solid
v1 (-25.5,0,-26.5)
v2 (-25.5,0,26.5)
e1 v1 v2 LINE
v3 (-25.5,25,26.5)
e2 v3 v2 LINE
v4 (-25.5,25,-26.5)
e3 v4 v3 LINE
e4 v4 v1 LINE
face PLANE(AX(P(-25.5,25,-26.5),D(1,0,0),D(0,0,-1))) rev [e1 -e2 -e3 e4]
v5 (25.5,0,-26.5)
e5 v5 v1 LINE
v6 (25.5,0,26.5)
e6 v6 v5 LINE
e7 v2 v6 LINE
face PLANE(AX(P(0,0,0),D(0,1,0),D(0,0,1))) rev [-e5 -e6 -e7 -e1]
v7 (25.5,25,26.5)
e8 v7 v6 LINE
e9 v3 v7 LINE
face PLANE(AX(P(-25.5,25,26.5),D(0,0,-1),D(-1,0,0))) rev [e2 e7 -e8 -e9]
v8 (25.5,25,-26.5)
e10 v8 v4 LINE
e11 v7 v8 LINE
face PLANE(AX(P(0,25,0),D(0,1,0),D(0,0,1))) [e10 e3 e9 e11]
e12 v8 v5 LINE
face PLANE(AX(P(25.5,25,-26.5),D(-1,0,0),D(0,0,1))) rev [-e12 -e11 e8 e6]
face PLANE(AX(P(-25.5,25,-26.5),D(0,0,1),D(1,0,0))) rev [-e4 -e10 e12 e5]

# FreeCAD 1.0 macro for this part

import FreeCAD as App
import Part
import Sketcher

V = App.Vector


def add_polygon(sketch, points):
    """Adds a closed chain of lines whose ends are joined by coincident constraints."""
    first, n = sketch.GeometryCount, len(points)
    for a, b in zip(points, points[1:] + points[:1]):
        sketch.addGeometry(Part.LineSegment(App.Vector(*a, 0), App.Vector(*b, 0)), False)
    for i in range(n):
        sketch.addConstraint(Sketcher.Constraint("Coincident", first + i, 2, first + (i + 1) % n, 1))

doc = App.newDocument("Part")
params = doc.addObject("Spreadsheet::Sheet", "Params")
for row, (alias, value) in enumerate([
    ("sketch1_width", "51 mm"),
    ("sketch1_height", "53 mm"),
    ("pad1_length", "25 mm"),
], start=1):
    params.set(f"A{row}", alias)
    params.set(f"B{row}", "=" + value)
    params.setAlias(f"B{row}", alias)

body = doc.addObject("PartDesign::Body", "Body")

# Sketch on XZ plane
sketch1 = body.newObject("Sketcher::SketchObject", "Sketch")
sketch1.AttachmentSupport = (doc.getObject("XZ_Plane"), [""])
sketch1.MapMode = "FlatFace"
add_polygon(sketch1, [(-26, -26), (-26, 26), (26, 26), (26, -26)])  # lines 0-3
sketch1.addConstraint([
    Sketcher.Constraint("Vertical", 0),
    Sketcher.Constraint("Horizontal", 1),
    Sketcher.Constraint("Vertical", 2),
    Sketcher.Constraint("Horizontal", 3),
    Sketcher.Constraint("Symmetric", 0, 2, 2, 2, -1, 1),
    Sketcher.Constraint("DistanceX", 1, 1, 1, 2, 51.0),
    Sketcher.Constraint("DistanceY", 0, 1, 0, 2, 53.0),
])
sketch1.setExpression("Constraints[9]", "Params.sketch1_width")
sketch1.setExpression("Constraints[10]", "Params.sketch1_height")
pad1 = body.newObject("PartDesign::Pad", "Pad")
pad1.Profile = sketch1
pad1.setExpression("Length", "Params.pad1_length")
pad1.Reversed = True

doc.recompute()
